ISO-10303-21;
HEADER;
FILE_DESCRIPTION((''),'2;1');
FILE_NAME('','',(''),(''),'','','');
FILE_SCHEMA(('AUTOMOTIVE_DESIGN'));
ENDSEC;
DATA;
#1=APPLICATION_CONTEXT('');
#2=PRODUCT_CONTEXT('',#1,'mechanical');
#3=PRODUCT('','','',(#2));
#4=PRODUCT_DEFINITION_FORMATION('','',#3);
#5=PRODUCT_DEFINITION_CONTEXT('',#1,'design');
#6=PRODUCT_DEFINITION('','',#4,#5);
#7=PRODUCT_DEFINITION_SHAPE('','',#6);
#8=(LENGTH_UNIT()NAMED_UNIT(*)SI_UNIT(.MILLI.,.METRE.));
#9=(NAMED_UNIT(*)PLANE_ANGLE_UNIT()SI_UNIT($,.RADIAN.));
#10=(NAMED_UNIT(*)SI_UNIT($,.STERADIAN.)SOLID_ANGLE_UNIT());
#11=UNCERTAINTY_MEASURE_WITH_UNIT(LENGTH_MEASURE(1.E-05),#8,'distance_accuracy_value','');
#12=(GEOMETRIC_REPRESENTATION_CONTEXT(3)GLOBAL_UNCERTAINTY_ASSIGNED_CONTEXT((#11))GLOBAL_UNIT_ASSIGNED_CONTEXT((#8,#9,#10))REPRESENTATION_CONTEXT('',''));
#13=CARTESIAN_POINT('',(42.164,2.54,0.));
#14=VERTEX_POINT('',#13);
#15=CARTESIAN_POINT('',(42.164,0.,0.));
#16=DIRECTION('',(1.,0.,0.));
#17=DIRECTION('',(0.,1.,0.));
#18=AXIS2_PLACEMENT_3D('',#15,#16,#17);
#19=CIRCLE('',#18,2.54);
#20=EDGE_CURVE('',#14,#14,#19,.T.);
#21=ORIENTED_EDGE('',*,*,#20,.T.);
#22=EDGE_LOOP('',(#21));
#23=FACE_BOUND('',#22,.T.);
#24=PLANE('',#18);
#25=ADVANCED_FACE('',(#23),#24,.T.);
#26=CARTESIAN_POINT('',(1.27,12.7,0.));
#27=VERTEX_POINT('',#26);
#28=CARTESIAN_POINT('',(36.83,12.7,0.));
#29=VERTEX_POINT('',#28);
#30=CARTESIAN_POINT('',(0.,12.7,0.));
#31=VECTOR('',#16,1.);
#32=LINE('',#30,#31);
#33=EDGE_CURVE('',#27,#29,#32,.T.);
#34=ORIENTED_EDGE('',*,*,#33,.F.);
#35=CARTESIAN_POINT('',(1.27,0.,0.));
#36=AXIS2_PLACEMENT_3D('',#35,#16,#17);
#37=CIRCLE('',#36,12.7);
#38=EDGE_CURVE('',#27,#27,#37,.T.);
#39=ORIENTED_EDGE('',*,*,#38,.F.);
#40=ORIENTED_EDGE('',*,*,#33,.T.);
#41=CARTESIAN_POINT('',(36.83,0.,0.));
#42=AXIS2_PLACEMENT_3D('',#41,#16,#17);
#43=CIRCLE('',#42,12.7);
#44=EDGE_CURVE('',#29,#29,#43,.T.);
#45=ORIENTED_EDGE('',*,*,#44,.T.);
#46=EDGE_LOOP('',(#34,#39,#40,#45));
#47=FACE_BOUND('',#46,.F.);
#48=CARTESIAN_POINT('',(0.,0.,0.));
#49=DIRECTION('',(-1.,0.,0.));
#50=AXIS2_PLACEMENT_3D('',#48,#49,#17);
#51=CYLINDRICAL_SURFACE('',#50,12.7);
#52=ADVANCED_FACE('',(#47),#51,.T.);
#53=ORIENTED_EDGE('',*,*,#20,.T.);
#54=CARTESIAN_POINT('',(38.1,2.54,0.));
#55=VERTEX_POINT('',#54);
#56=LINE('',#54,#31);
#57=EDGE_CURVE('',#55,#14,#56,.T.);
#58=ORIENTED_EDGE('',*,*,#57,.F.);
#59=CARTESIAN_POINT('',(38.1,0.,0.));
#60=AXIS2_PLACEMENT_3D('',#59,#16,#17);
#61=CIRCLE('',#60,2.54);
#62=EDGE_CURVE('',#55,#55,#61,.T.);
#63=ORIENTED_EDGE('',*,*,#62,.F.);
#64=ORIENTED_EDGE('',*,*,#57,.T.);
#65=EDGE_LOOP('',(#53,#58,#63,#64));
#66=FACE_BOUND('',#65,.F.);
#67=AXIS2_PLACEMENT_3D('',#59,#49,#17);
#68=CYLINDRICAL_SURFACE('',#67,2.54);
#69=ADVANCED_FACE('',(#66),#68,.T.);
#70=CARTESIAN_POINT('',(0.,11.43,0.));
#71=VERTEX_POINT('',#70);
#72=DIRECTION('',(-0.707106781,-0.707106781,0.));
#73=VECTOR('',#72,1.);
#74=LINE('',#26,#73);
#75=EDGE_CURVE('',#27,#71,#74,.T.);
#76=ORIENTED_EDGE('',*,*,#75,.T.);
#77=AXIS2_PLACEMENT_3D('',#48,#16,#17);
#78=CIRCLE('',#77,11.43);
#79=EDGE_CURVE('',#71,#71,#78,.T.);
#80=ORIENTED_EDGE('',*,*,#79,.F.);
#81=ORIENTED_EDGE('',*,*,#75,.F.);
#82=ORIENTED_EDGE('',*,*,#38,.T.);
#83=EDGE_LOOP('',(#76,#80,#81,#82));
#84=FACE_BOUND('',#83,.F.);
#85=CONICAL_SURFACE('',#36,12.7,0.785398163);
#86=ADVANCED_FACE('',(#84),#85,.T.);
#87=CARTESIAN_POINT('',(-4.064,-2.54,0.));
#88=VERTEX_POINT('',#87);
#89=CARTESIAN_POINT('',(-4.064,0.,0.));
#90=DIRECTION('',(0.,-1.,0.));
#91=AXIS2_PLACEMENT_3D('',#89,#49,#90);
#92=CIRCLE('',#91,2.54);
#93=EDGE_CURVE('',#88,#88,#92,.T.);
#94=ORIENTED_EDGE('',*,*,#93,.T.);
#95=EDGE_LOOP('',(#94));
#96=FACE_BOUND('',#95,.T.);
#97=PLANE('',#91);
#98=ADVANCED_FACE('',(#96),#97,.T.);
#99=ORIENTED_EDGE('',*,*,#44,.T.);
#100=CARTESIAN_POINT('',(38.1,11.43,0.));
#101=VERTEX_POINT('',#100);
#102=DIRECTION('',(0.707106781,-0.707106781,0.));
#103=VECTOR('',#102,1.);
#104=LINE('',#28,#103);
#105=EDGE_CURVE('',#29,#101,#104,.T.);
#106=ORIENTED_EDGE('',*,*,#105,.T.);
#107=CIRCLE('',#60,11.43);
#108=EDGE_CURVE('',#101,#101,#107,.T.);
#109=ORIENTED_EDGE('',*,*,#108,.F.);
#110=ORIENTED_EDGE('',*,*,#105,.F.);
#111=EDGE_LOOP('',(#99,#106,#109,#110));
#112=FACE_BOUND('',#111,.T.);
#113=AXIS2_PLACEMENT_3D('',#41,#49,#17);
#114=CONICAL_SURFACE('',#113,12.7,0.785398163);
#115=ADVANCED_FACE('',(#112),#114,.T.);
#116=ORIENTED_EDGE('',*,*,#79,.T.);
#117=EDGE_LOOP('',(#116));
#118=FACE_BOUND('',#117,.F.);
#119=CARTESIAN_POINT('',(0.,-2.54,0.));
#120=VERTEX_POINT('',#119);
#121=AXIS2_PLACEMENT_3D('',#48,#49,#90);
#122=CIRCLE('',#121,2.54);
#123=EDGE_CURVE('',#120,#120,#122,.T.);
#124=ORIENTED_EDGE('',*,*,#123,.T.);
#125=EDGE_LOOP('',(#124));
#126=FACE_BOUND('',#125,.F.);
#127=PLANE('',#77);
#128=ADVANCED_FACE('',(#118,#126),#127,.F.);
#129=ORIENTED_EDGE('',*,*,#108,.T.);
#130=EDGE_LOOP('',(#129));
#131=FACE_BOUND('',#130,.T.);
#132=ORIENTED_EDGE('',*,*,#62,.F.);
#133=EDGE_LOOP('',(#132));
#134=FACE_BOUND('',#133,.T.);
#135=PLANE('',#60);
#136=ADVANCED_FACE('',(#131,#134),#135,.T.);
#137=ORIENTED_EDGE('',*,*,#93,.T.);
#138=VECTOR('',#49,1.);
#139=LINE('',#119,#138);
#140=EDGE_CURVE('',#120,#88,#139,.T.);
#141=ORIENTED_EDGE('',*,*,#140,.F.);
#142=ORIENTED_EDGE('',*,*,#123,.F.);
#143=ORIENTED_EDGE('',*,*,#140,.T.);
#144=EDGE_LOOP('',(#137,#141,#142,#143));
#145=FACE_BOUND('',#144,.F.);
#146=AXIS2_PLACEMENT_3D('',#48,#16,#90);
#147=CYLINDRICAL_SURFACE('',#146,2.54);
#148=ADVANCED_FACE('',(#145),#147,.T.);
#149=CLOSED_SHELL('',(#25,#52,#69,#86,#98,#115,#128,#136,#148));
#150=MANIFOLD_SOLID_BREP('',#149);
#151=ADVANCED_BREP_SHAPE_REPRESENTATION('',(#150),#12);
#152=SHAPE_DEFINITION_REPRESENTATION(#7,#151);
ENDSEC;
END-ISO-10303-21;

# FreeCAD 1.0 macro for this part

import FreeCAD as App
import Part
import Sketcher

V = App.Vector
Q = App.Units.Quantity

doc = App.newDocument("Part")
params = doc.addObject("Spreadsheet::Sheet", "Params")
for row, (alias, value) in enumerate([
    ("sketch1_diameter", "1 in"),
    ("pad1_length", "1.5 in"),
    ("chamfer_size", "0.05 in"),
    ("sketch2_diameter", "0.2 in"),
    ("pad2_length", "0.16 in"),
    ("sketch3_diameter", "0.2 in"),
    ("pad3_length", "0.16 in"),
], start=1):
    params.set(f"A{row}", alias)
    params.set(f"B{row}", "=" + value)
    params.setAlias(f"B{row}", alias)

body = doc.addObject("PartDesign::Body", "Body")

# Sketch on YZ plane
sketch1 = body.newObject("Sketcher::SketchObject", "Sketch")
sketch1.AttachmentSupport = (doc.getObject("YZ_Plane"), [""])
sketch1.MapMode = "FlatFace"
sketch1.addGeometry(Part.Circle(V(0, 0, 0), V(0, 0, 1), 13), False)
sketch1.addConstraint(Sketcher.Constraint("Coincident", 0, 3, -1, 1))
sketch1.addConstraint(Sketcher.Constraint("Diameter", 0, Q("1 in")))
sketch1.setExpression("Constraints[1]", "Params.sketch1_diameter")
pad1 = body.newObject("PartDesign::Pad", "Pad")
pad1.Profile = sketch1
pad1.setExpression("Length", "Params.pad1_length")
doc.recompute()

chamfer = body.newObject("PartDesign::Chamfer", "Chamfer")
chamfer.Base = (pad1, ["Edge1"])
chamfer.UseAllEdges = True
chamfer.setExpression("Size", "Params.chamfer_size")

# Sketch on YZ plane
sketch2 = body.newObject("Sketcher::SketchObject", "Sketch001")
sketch2.AttachmentSupport = (doc.getObject("YZ_Plane"), [""])
sketch2.MapMode = "FlatFace"
sketch2.addGeometry(Part.Circle(V(0, 0, 0), V(0, 0, 1), 2.5), False)
sketch2.addConstraint(Sketcher.Constraint("Coincident", 0, 3, -1, 1))
sketch2.addConstraint(Sketcher.Constraint("Diameter", 0, Q("0.2 in")))
sketch2.setExpression("Constraints[1]", "Params.sketch2_diameter")
pad2 = body.newObject("PartDesign::Pad", "Pad001")
pad2.Profile = sketch2
pad2.setExpression("Length", "Params.pad2_length")
pad2.Reversed = True

# Sketch on YZ plane
sketch3 = body.newObject("Sketcher::SketchObject", "Sketch002")
sketch3.AttachmentSupport = (doc.getObject("YZ_Plane"), [""])
sketch3.MapMode = "FlatFace"
sketch3.AttachmentOffset = App.Placement(V(0, 0, 1.5 * 25.4), App.Rotation())
sketch3.addGeometry(Part.Circle(V(0, 0, 0), V(0, 0, 1), 2.5), False)
sketch3.addConstraint(Sketcher.Constraint("Coincident", 0, 3, -1, 1))
sketch3.addConstraint(Sketcher.Constraint("Diameter", 0, Q("0.2 in")))
sketch3.setExpression("Constraints[1]", "Params.sketch3_diameter")
pad3 = body.newObject("PartDesign::Pad", "Pad002")
pad3.Profile = sketch3
pad3.setExpression("Length", "Params.pad3_length")

doc.recompute()
